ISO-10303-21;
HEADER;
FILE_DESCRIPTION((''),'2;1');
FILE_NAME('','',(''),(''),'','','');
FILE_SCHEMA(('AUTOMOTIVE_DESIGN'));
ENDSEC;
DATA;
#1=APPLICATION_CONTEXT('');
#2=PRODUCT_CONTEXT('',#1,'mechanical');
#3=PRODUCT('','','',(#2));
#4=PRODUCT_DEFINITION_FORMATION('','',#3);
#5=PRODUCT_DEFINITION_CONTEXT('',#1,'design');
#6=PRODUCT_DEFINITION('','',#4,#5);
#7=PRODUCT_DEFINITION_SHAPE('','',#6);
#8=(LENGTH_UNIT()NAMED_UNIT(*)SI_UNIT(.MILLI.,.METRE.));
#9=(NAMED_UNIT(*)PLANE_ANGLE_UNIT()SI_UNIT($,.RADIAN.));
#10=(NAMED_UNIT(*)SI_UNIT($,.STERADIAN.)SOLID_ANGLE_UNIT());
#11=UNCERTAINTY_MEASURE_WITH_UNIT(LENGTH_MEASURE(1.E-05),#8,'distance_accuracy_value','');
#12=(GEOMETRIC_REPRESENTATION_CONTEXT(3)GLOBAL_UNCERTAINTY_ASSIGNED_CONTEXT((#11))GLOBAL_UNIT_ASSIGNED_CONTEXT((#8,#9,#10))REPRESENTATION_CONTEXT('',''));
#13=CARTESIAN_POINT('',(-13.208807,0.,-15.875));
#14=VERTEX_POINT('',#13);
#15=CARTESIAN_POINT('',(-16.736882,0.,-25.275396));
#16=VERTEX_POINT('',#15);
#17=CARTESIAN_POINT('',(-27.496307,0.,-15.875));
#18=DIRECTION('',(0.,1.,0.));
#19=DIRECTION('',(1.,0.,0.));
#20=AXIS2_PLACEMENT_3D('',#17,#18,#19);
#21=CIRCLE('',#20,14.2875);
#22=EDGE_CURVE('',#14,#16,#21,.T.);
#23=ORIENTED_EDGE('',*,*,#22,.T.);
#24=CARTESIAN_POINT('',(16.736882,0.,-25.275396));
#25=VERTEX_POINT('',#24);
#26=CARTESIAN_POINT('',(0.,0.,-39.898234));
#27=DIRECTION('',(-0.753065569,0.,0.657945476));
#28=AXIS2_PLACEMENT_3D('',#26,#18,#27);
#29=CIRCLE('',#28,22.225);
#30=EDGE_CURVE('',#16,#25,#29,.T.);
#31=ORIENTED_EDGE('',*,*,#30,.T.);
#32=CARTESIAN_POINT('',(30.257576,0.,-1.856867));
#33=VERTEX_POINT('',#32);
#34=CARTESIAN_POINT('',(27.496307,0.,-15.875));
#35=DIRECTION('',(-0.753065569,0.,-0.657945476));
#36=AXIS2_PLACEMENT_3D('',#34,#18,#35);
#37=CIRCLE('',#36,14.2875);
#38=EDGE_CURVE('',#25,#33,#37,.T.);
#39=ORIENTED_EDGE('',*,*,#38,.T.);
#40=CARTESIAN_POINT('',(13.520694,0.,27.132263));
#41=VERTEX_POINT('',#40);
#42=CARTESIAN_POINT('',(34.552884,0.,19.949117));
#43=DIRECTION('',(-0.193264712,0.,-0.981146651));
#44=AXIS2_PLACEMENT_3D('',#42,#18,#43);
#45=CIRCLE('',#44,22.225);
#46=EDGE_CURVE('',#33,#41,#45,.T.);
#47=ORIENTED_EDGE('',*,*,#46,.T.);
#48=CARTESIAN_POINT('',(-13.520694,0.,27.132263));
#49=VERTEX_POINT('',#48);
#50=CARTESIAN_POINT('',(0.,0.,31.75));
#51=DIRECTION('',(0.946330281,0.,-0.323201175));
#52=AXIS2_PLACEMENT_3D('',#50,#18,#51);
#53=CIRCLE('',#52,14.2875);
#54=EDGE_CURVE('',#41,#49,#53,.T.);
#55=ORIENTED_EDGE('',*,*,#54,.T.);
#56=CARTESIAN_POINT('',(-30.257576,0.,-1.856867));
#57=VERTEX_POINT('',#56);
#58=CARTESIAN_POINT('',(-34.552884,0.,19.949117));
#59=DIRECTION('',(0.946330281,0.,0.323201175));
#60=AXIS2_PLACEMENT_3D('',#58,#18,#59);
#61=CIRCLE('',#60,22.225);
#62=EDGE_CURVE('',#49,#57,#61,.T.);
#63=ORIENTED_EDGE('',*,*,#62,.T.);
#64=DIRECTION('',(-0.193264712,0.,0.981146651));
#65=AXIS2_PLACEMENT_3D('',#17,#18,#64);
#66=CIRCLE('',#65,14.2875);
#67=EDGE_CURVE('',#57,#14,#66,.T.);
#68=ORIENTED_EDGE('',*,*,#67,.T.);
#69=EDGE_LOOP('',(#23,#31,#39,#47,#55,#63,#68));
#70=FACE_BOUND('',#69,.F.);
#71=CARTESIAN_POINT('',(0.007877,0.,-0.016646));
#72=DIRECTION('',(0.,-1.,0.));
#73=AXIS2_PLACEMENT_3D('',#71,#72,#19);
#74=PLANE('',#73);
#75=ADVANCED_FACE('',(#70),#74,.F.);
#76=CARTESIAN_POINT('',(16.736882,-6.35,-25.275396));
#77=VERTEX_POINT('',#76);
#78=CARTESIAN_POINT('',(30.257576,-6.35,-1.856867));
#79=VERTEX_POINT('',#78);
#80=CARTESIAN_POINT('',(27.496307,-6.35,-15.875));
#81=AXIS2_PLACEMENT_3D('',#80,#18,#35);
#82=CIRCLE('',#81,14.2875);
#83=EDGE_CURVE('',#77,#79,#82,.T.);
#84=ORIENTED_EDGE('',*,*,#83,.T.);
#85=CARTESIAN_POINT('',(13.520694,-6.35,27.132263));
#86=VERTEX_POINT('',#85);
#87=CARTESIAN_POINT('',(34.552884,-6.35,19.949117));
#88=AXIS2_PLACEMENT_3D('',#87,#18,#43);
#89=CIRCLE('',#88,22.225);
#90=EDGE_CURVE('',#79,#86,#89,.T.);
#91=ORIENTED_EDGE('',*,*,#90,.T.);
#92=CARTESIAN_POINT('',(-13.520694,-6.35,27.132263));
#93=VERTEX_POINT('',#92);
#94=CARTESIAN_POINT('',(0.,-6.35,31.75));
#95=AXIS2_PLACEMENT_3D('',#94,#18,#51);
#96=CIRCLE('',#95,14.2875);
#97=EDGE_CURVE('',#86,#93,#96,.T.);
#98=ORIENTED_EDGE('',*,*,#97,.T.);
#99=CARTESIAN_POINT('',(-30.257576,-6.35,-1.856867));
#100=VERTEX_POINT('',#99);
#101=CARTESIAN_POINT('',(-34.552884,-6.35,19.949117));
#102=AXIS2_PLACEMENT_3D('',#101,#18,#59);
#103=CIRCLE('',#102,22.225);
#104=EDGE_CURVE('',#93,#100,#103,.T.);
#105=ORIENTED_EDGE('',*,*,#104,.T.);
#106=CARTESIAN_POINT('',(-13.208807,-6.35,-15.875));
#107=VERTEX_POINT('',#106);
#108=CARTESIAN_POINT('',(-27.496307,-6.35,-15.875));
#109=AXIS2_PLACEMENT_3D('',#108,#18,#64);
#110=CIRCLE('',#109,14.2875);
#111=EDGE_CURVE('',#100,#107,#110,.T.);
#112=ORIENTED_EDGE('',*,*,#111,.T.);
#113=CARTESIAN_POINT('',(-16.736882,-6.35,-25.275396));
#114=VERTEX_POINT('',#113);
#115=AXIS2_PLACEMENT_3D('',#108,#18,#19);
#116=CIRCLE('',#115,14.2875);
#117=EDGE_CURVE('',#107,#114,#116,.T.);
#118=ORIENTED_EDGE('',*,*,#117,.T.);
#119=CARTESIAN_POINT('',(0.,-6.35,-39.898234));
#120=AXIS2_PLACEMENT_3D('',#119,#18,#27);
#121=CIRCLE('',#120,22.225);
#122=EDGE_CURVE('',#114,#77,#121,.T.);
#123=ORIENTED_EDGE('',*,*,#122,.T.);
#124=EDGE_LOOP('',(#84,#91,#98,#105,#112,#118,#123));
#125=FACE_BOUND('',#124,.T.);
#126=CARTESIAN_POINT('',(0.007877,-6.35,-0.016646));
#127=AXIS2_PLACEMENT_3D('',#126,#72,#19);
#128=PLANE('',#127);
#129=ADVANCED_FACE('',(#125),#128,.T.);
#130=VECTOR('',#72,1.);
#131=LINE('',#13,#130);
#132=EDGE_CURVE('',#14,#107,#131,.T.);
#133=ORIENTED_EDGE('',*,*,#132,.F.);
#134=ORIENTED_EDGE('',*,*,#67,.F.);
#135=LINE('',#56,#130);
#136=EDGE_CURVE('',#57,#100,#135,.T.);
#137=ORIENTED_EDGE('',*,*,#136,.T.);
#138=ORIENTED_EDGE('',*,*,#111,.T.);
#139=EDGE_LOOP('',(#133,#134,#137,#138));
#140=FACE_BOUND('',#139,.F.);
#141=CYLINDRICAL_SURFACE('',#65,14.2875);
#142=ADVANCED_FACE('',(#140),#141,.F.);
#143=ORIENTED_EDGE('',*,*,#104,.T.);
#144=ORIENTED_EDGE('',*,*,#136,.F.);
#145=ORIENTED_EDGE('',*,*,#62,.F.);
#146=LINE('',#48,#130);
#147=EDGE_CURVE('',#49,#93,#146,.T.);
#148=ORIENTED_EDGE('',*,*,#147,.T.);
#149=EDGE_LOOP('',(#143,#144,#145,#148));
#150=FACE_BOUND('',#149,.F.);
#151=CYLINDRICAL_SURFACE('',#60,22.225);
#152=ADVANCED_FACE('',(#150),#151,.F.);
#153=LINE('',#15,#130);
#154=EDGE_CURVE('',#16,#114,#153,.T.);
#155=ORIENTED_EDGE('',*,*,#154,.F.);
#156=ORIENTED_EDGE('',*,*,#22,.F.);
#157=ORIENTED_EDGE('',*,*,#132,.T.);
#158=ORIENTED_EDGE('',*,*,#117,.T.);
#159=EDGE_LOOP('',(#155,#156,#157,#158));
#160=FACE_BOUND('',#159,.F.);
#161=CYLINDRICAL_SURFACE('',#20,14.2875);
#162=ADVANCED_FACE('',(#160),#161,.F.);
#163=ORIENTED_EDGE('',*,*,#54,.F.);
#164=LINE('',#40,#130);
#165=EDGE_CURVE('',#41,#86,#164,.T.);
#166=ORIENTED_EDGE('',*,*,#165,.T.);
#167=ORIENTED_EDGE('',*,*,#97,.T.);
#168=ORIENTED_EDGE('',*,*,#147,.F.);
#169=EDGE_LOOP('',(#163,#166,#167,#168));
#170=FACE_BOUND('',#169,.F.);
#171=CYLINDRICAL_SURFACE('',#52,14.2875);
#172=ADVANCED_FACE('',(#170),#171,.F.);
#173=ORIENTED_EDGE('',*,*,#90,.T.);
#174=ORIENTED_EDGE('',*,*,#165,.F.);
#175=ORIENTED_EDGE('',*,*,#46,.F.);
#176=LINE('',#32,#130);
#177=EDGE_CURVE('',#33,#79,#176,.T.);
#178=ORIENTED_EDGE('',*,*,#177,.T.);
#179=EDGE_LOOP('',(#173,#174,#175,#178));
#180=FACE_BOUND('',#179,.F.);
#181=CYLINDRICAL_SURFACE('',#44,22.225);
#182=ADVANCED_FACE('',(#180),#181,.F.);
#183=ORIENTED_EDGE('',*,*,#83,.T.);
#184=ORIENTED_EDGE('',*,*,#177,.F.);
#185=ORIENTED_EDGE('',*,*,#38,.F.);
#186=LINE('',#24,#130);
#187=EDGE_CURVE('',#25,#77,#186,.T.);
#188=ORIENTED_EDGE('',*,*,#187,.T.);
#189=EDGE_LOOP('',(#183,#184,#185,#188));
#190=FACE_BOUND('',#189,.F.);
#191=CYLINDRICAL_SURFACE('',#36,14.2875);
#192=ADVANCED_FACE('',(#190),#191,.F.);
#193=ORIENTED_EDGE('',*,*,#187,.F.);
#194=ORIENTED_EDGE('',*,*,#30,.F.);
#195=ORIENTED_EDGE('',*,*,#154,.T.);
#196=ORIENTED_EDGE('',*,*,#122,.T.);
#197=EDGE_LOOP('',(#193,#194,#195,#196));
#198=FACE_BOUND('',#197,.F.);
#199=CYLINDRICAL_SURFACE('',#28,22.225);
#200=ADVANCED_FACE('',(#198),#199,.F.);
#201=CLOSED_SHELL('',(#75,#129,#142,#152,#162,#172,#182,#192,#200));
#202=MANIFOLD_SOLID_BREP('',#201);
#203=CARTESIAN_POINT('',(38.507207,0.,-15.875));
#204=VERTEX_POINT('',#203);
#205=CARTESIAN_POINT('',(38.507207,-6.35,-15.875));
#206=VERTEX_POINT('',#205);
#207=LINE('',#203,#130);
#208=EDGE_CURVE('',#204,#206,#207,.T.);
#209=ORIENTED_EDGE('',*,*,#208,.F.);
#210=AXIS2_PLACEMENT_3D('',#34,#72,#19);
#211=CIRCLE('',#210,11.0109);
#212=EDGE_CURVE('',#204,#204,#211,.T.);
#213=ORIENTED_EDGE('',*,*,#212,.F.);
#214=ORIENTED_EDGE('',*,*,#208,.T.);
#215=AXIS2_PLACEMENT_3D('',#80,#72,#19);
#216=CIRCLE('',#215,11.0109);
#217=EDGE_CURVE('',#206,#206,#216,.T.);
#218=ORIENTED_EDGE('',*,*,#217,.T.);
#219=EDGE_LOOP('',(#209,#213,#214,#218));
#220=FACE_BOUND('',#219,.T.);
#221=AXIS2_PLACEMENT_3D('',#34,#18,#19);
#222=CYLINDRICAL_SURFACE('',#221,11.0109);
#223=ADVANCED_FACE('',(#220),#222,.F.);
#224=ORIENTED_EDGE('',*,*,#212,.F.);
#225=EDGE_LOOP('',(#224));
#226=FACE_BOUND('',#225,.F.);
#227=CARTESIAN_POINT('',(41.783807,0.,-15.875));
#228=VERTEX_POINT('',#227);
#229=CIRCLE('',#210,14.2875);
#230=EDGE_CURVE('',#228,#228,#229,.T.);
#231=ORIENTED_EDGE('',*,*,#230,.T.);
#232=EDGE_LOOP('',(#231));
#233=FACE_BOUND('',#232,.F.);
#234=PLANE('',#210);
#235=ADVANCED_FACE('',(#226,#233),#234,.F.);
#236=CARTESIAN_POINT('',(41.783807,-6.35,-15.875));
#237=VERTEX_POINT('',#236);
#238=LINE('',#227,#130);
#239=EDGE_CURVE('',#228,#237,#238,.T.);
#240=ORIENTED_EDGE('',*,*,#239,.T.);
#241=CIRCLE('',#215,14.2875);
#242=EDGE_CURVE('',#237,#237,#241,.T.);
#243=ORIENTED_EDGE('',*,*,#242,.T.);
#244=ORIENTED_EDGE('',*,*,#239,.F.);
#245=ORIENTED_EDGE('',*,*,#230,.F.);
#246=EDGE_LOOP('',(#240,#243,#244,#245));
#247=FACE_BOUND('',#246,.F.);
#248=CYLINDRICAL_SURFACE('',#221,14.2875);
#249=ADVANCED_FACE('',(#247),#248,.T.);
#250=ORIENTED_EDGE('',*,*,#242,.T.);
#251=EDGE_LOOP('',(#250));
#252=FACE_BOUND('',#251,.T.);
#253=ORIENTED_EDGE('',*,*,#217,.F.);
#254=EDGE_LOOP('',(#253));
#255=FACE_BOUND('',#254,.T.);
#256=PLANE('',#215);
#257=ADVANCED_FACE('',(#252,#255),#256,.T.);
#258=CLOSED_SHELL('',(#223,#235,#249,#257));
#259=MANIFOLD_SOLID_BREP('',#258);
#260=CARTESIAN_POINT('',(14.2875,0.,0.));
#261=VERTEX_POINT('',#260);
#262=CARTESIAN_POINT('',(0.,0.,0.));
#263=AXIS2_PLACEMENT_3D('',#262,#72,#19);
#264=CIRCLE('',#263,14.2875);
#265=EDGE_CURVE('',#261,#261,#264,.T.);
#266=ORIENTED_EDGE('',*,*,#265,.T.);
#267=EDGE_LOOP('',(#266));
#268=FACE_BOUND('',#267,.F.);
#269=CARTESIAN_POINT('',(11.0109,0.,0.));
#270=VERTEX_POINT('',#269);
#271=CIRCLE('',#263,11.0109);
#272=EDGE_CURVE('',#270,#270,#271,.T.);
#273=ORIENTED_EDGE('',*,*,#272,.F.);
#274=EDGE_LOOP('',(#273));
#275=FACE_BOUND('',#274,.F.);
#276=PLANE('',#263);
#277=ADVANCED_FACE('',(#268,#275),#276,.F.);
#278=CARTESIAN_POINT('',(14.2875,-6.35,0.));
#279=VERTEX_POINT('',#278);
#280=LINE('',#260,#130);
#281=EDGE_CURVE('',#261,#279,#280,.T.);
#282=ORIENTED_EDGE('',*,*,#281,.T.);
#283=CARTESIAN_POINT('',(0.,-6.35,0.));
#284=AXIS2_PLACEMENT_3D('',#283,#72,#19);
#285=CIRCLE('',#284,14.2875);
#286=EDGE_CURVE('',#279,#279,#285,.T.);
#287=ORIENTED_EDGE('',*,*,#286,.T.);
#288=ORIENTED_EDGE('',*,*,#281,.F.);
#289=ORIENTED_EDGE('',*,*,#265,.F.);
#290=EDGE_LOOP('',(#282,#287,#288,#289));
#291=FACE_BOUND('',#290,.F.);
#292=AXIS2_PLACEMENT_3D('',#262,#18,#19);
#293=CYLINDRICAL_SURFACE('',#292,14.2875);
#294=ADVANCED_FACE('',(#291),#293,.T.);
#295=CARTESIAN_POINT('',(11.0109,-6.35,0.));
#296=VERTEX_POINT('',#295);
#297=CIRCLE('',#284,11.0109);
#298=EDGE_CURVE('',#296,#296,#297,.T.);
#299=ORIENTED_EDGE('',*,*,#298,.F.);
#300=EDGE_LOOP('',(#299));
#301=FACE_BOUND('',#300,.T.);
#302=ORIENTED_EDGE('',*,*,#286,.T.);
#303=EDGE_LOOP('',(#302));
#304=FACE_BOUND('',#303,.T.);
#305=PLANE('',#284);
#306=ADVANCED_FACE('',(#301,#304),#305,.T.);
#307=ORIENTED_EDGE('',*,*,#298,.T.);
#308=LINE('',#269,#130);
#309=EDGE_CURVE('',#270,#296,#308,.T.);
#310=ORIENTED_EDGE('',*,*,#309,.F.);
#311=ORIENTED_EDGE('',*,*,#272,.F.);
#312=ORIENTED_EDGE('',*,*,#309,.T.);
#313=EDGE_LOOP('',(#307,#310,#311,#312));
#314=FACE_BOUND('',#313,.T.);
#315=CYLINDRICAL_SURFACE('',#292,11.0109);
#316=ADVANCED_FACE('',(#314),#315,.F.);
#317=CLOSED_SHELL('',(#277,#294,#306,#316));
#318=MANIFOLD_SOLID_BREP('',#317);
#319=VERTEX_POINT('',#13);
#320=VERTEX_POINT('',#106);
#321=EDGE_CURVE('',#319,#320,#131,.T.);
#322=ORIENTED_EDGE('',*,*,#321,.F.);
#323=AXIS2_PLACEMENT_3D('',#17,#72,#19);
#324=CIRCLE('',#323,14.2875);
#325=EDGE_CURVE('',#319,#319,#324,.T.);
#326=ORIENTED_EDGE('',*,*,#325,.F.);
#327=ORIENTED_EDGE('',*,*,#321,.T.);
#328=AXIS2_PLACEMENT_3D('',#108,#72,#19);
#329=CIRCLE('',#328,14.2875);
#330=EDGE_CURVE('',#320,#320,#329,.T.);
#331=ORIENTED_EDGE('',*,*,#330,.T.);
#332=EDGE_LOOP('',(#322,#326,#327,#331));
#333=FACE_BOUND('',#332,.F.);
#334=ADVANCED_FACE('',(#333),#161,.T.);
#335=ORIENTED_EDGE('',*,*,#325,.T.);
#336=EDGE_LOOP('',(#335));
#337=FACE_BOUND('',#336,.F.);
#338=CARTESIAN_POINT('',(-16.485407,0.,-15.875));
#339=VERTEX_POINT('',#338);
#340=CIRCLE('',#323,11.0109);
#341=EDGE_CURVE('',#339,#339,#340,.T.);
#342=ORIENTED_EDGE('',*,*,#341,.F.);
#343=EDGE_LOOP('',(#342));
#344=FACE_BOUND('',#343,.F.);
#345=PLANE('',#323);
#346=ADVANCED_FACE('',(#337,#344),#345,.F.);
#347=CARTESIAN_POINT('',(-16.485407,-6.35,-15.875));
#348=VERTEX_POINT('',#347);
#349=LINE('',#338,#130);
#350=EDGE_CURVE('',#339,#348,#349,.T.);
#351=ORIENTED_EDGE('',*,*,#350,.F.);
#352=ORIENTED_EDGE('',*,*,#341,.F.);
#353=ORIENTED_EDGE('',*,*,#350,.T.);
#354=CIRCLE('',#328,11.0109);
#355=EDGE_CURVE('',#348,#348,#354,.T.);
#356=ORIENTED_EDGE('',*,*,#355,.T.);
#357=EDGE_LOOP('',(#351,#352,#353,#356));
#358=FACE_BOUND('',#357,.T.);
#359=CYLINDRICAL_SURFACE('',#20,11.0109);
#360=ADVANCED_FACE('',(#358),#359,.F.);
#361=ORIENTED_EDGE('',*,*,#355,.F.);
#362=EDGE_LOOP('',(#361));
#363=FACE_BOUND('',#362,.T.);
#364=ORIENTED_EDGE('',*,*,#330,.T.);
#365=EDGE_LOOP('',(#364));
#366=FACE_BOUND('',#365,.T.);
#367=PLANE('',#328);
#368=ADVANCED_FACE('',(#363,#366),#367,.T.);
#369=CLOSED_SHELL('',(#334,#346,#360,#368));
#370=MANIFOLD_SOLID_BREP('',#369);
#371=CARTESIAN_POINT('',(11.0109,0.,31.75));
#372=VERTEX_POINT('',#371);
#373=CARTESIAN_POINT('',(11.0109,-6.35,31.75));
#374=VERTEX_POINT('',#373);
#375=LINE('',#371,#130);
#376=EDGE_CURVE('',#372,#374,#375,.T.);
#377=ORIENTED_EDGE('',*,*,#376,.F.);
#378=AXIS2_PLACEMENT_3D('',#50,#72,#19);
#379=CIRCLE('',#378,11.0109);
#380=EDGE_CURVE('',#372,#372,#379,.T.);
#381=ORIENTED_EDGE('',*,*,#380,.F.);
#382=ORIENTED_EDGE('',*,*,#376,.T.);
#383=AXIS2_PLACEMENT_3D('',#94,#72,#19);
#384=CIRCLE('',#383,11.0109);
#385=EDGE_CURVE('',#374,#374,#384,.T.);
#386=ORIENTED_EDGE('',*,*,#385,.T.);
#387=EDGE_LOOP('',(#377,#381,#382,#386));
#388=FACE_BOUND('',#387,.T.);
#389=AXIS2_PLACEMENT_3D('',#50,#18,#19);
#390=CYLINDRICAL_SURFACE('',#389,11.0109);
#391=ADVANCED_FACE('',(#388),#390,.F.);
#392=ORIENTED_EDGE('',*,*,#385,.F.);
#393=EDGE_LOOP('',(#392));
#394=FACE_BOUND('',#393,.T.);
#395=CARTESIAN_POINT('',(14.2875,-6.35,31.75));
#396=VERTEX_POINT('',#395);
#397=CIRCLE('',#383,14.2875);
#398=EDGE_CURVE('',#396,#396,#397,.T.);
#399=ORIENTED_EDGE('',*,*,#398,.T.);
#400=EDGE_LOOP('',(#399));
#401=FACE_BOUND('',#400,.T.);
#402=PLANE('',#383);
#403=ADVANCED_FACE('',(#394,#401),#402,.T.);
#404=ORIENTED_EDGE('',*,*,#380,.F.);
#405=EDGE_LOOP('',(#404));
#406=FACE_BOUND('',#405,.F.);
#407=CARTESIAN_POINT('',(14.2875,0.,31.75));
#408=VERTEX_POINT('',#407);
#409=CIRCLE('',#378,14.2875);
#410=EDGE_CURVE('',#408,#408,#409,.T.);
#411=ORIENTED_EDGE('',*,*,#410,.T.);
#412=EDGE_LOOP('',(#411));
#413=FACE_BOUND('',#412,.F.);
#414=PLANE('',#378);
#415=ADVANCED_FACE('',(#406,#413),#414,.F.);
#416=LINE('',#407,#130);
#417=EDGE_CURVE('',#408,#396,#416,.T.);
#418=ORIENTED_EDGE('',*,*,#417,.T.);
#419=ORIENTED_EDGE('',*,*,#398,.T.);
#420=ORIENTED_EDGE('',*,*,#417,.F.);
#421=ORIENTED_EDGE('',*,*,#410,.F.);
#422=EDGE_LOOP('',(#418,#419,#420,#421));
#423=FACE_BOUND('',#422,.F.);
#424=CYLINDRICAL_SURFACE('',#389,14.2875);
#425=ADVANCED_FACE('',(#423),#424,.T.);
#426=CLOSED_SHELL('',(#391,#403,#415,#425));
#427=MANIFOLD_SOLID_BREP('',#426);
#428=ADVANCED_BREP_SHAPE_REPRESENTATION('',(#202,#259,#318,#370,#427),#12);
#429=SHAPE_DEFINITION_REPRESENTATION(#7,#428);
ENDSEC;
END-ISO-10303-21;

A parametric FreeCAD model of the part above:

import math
import FreeCAD as App
import Part
import Sketcher
Q = App.Units.Quantity

doc = App.newDocument("Part")
body = doc.addObject("PartDesign::Body", "Body")

sketch1 = doc.addObject("Sketcher::SketchObject", "Sketch")
body.addObject(sketch1)
sketch1.AttachmentSupport = (doc.XZ_Plane, [""])
sketch1.MapMode = "FlatFace"
sketch1.addGeometry(Part.ArcOfCircle(Part.Circle(App.Vector(-35, 20, 0), App.Vector(0, 0, 1), 22), math.radians(-79), math.radians(19)), False)
sketch1.addGeometry(Part.ArcOfCircle(Part.Circle(App.Vector(-27, -16, 0), App.Vector(0, 0, 1), 14), math.radians(0), math.radians(101)), False)
sketch1.addGeometry(Part.ArcOfCircle(Part.Circle(App.Vector(-27, -16, 0), App.Vector(0, 0, 1), 14), math.radians(-41), math.radians(0)), False)
sketch1.addGeometry(Part.ArcOfCircle(Part.Circle(App.Vector(0, -40, 0), App.Vector(0, 0, 1), 22), math.radians(41), math.radians(139)), False)
sketch1.addGeometry(Part.ArcOfCircle(Part.Circle(App.Vector(27, -16, 0), App.Vector(0, 0, 1), 14), math.radians(79), math.radians(221)), False)
sketch1.addGeometry(Part.ArcOfCircle(Part.Circle(App.Vector(35, 20, 0), App.Vector(0, 0, 1), 22), math.radians(161), math.radians(259)), False)
sketch1.addGeometry(Part.ArcOfCircle(Part.Circle(App.Vector(0, 32, 0), App.Vector(0, 0, 1), 14), math.radians(-161), math.radians(-19)), False)
sketch1.addConstraint(Sketcher.Constraint("Tangent", 0, 1, 1, 2))
sketch1.addConstraint(Sketcher.Constraint("Tangent", 1, 1, 2, 2))
sketch1.addConstraint(Sketcher.Constraint("Tangent", 2, 1, 3, 2))
sketch1.addConstraint(Sketcher.Constraint("Tangent", 3, 1, 4, 2))
sketch1.addConstraint(Sketcher.Constraint("Tangent", 4, 1, 5, 2))
sketch1.addConstraint(Sketcher.Constraint("Tangent", 5, 1, 6, 2))
sketch1.addConstraint(Sketcher.Constraint("Tangent", 6, 1, 0, 2))
sketch1.addConstraint(Sketcher.Constraint("Equal", 1, 2))
sketch1.addConstraint(Sketcher.Constraint("Equal", 0, 3))
sketch1.addConstraint(Sketcher.Constraint("Equal", 2, 4))
sketch1.addConstraint(Sketcher.Constraint("Equal", 3, 5))
sketch1.addConstraint(Sketcher.Constraint("Equal", 4, 6))
sketch1.addConstraint(Sketcher.Constraint("Symmetric", 1, 3, 4, 3, -2))
sketch1.addConstraint(Sketcher.Constraint("PointOnObject", 6, 3, -2))
sketch1.addConstraint(Sketcher.Constraint("Horizontal", 4, 3, 1, 1))
sketch1.addConstraint(Sketcher.Constraint("Radius", 0, Q("0.875 in")))
sketch1.addConstraint(Sketcher.Constraint("Radius", 1, Q("0.5625 in")))
sketch1.addConstraint(Sketcher.Constraint("DistanceY", -1, 1, 6, 3, Q("1.25 in")))
sketch1.addConstraint(Sketcher.Constraint("DistanceY", 1, 3, -1, 1, Q("0.625 in")))
sketch1.addConstraint(Sketcher.Constraint("DistanceY", 3, 3, 0, 3, 59.847351))
pad1 = doc.addObject("PartDesign::Pad", "Pad")
body.addObject(pad1)
pad1.Profile = sketch1
pad1.Length = Q("0.25 in")
body2 = doc.addObject("PartDesign::Body", "Body001")

sketch2 = doc.addObject("Sketcher::SketchObject", "Sketch001")
body2.addObject(sketch2)
sketch2.AttachmentSupport = (doc.getObject("XZ_Plane001"), [""])
sketch2.MapMode = "FlatFace"
sketch2.addGeometry(Part.Circle(App.Vector(27, -16, 0), App.Vector(0, 0, 1), 14), False)
sketch2.addGeometry(Part.Circle(App.Vector(27, -16, 0), App.Vector(0, 0, 1), 11), False)
sketch2.addConstraint(Sketcher.Constraint("Coincident", 1, 3, 0, 3))
sketch2.addConstraint(Sketcher.Constraint("Diameter", 0, Q("1.125 in")))
sketch2.addConstraint(Sketcher.Constraint("Diameter", 1, Q("0.867 in")))
sketch2.addConstraint(Sketcher.Constraint("DistanceY", 0, 3, -1, 1, Q("0.625 in")))
sketch2.addConstraint(Sketcher.Constraint("DistanceX", -1, 1, 0, 3, 27.496307))
pad2 = doc.addObject("PartDesign::Pad", "Pad001")
body2.addObject(pad2)
pad2.Profile = sketch2
pad2.Length = Q("0.25 in")
body3 = doc.addObject("PartDesign::Body", "Body002")

sketch3 = doc.addObject("Sketcher::SketchObject", "Sketch002")
body3.addObject(sketch3)
sketch3.AttachmentSupport = (doc.getObject("XZ_Plane002"), [""])
sketch3.MapMode = "FlatFace"
sketch3.addGeometry(Part.Circle(App.Vector(0, 0, 0), App.Vector(0, 0, 1), 14), False)
sketch3.addGeometry(Part.Circle(App.Vector(0, 0, 0), App.Vector(0, 0, 1), 11), False)
sketch3.addConstraint(Sketcher.Constraint("Coincident", 0, 3, -1, 1))
sketch3.addConstraint(Sketcher.Constraint("Coincident", 1, 3, -1, 1))
sketch3.addConstraint(Sketcher.Constraint("Diameter", 0, Q("1.125 in")))
sketch3.addConstraint(Sketcher.Constraint("Diameter", 1, Q("0.867 in")))
pad3 = doc.addObject("PartDesign::Pad", "Pad002")
body3.addObject(pad3)
pad3.Profile = sketch3
pad3.Length = Q("0.25 in")
body4 = doc.addObject("PartDesign::Body", "Body003")

sketch4 = doc.addObject("Sketcher::SketchObject", "Sketch003")
body4.addObject(sketch4)
sketch4.AttachmentSupport = (doc.getObject("XZ_Plane003"), [""])
sketch4.MapMode = "FlatFace"
sketch4.addGeometry(Part.Circle(App.Vector(-27, -16, 0), App.Vector(0, 0, 1), 14), False)
sketch4.addGeometry(Part.Circle(App.Vector(-27, -16, 0), App.Vector(0, 0, 1), 11), False)
sketch4.addConstraint(Sketcher.Constraint("Coincident", 1, 3, 0, 3))
sketch4.addConstraint(Sketcher.Constraint("Diameter", 0, Q("1.125 in")))
sketch4.addConstraint(Sketcher.Constraint("Diameter", 1, Q("0.867 in")))
sketch4.addConstraint(Sketcher.Constraint("DistanceY", 0, 3, -1, 1, Q("0.625 in")))
sketch4.addConstraint(Sketcher.Constraint("DistanceX", 0, 3, -1, 1, 27.496307))
pad4 = doc.addObject("PartDesign::Pad", "Pad003")
body4.addObject(pad4)
pad4.Profile = sketch4
pad4.Length = Q("0.25 in")
body5 = doc.addObject("PartDesign::Body", "Body004")

sketch5 = doc.addObject("Sketcher::SketchObject", "Sketch004")
body5.addObject(sketch5)
sketch5.AttachmentSupport = (doc.getObject("XZ_Plane004"), [""])
sketch5.MapMode = "FlatFace"
sketch5.addGeometry(Part.Circle(App.Vector(0, 32, 0), App.Vector(0, 0, 1), 14), False)
sketch5.addGeometry(Part.Circle(App.Vector(0, 32, 0), App.Vector(0, 0, 1), 11), False)
sketch5.addConstraint(Sketcher.Constraint("Coincident", 1, 3, 0, 3))
sketch5.addConstraint(Sketcher.Constraint("PointOnObject", 0, 3, -2))
sketch5.addConstraint(Sketcher.Constraint("Diameter", 0, Q("1.125 in")))
sketch5.addConstraint(Sketcher.Constraint("Diameter", 1, Q("0.867 in")))
sketch5.addConstraint(Sketcher.Constraint("DistanceY", -1, 1, 0, 3, Q("1.25 in")))
pad5 = doc.addObject("PartDesign::Pad", "Pad004")
body5.addObject(pad5)
pad5.Profile = sketch5
pad5.Length = Q("0.25 in")

doc.recompute()
